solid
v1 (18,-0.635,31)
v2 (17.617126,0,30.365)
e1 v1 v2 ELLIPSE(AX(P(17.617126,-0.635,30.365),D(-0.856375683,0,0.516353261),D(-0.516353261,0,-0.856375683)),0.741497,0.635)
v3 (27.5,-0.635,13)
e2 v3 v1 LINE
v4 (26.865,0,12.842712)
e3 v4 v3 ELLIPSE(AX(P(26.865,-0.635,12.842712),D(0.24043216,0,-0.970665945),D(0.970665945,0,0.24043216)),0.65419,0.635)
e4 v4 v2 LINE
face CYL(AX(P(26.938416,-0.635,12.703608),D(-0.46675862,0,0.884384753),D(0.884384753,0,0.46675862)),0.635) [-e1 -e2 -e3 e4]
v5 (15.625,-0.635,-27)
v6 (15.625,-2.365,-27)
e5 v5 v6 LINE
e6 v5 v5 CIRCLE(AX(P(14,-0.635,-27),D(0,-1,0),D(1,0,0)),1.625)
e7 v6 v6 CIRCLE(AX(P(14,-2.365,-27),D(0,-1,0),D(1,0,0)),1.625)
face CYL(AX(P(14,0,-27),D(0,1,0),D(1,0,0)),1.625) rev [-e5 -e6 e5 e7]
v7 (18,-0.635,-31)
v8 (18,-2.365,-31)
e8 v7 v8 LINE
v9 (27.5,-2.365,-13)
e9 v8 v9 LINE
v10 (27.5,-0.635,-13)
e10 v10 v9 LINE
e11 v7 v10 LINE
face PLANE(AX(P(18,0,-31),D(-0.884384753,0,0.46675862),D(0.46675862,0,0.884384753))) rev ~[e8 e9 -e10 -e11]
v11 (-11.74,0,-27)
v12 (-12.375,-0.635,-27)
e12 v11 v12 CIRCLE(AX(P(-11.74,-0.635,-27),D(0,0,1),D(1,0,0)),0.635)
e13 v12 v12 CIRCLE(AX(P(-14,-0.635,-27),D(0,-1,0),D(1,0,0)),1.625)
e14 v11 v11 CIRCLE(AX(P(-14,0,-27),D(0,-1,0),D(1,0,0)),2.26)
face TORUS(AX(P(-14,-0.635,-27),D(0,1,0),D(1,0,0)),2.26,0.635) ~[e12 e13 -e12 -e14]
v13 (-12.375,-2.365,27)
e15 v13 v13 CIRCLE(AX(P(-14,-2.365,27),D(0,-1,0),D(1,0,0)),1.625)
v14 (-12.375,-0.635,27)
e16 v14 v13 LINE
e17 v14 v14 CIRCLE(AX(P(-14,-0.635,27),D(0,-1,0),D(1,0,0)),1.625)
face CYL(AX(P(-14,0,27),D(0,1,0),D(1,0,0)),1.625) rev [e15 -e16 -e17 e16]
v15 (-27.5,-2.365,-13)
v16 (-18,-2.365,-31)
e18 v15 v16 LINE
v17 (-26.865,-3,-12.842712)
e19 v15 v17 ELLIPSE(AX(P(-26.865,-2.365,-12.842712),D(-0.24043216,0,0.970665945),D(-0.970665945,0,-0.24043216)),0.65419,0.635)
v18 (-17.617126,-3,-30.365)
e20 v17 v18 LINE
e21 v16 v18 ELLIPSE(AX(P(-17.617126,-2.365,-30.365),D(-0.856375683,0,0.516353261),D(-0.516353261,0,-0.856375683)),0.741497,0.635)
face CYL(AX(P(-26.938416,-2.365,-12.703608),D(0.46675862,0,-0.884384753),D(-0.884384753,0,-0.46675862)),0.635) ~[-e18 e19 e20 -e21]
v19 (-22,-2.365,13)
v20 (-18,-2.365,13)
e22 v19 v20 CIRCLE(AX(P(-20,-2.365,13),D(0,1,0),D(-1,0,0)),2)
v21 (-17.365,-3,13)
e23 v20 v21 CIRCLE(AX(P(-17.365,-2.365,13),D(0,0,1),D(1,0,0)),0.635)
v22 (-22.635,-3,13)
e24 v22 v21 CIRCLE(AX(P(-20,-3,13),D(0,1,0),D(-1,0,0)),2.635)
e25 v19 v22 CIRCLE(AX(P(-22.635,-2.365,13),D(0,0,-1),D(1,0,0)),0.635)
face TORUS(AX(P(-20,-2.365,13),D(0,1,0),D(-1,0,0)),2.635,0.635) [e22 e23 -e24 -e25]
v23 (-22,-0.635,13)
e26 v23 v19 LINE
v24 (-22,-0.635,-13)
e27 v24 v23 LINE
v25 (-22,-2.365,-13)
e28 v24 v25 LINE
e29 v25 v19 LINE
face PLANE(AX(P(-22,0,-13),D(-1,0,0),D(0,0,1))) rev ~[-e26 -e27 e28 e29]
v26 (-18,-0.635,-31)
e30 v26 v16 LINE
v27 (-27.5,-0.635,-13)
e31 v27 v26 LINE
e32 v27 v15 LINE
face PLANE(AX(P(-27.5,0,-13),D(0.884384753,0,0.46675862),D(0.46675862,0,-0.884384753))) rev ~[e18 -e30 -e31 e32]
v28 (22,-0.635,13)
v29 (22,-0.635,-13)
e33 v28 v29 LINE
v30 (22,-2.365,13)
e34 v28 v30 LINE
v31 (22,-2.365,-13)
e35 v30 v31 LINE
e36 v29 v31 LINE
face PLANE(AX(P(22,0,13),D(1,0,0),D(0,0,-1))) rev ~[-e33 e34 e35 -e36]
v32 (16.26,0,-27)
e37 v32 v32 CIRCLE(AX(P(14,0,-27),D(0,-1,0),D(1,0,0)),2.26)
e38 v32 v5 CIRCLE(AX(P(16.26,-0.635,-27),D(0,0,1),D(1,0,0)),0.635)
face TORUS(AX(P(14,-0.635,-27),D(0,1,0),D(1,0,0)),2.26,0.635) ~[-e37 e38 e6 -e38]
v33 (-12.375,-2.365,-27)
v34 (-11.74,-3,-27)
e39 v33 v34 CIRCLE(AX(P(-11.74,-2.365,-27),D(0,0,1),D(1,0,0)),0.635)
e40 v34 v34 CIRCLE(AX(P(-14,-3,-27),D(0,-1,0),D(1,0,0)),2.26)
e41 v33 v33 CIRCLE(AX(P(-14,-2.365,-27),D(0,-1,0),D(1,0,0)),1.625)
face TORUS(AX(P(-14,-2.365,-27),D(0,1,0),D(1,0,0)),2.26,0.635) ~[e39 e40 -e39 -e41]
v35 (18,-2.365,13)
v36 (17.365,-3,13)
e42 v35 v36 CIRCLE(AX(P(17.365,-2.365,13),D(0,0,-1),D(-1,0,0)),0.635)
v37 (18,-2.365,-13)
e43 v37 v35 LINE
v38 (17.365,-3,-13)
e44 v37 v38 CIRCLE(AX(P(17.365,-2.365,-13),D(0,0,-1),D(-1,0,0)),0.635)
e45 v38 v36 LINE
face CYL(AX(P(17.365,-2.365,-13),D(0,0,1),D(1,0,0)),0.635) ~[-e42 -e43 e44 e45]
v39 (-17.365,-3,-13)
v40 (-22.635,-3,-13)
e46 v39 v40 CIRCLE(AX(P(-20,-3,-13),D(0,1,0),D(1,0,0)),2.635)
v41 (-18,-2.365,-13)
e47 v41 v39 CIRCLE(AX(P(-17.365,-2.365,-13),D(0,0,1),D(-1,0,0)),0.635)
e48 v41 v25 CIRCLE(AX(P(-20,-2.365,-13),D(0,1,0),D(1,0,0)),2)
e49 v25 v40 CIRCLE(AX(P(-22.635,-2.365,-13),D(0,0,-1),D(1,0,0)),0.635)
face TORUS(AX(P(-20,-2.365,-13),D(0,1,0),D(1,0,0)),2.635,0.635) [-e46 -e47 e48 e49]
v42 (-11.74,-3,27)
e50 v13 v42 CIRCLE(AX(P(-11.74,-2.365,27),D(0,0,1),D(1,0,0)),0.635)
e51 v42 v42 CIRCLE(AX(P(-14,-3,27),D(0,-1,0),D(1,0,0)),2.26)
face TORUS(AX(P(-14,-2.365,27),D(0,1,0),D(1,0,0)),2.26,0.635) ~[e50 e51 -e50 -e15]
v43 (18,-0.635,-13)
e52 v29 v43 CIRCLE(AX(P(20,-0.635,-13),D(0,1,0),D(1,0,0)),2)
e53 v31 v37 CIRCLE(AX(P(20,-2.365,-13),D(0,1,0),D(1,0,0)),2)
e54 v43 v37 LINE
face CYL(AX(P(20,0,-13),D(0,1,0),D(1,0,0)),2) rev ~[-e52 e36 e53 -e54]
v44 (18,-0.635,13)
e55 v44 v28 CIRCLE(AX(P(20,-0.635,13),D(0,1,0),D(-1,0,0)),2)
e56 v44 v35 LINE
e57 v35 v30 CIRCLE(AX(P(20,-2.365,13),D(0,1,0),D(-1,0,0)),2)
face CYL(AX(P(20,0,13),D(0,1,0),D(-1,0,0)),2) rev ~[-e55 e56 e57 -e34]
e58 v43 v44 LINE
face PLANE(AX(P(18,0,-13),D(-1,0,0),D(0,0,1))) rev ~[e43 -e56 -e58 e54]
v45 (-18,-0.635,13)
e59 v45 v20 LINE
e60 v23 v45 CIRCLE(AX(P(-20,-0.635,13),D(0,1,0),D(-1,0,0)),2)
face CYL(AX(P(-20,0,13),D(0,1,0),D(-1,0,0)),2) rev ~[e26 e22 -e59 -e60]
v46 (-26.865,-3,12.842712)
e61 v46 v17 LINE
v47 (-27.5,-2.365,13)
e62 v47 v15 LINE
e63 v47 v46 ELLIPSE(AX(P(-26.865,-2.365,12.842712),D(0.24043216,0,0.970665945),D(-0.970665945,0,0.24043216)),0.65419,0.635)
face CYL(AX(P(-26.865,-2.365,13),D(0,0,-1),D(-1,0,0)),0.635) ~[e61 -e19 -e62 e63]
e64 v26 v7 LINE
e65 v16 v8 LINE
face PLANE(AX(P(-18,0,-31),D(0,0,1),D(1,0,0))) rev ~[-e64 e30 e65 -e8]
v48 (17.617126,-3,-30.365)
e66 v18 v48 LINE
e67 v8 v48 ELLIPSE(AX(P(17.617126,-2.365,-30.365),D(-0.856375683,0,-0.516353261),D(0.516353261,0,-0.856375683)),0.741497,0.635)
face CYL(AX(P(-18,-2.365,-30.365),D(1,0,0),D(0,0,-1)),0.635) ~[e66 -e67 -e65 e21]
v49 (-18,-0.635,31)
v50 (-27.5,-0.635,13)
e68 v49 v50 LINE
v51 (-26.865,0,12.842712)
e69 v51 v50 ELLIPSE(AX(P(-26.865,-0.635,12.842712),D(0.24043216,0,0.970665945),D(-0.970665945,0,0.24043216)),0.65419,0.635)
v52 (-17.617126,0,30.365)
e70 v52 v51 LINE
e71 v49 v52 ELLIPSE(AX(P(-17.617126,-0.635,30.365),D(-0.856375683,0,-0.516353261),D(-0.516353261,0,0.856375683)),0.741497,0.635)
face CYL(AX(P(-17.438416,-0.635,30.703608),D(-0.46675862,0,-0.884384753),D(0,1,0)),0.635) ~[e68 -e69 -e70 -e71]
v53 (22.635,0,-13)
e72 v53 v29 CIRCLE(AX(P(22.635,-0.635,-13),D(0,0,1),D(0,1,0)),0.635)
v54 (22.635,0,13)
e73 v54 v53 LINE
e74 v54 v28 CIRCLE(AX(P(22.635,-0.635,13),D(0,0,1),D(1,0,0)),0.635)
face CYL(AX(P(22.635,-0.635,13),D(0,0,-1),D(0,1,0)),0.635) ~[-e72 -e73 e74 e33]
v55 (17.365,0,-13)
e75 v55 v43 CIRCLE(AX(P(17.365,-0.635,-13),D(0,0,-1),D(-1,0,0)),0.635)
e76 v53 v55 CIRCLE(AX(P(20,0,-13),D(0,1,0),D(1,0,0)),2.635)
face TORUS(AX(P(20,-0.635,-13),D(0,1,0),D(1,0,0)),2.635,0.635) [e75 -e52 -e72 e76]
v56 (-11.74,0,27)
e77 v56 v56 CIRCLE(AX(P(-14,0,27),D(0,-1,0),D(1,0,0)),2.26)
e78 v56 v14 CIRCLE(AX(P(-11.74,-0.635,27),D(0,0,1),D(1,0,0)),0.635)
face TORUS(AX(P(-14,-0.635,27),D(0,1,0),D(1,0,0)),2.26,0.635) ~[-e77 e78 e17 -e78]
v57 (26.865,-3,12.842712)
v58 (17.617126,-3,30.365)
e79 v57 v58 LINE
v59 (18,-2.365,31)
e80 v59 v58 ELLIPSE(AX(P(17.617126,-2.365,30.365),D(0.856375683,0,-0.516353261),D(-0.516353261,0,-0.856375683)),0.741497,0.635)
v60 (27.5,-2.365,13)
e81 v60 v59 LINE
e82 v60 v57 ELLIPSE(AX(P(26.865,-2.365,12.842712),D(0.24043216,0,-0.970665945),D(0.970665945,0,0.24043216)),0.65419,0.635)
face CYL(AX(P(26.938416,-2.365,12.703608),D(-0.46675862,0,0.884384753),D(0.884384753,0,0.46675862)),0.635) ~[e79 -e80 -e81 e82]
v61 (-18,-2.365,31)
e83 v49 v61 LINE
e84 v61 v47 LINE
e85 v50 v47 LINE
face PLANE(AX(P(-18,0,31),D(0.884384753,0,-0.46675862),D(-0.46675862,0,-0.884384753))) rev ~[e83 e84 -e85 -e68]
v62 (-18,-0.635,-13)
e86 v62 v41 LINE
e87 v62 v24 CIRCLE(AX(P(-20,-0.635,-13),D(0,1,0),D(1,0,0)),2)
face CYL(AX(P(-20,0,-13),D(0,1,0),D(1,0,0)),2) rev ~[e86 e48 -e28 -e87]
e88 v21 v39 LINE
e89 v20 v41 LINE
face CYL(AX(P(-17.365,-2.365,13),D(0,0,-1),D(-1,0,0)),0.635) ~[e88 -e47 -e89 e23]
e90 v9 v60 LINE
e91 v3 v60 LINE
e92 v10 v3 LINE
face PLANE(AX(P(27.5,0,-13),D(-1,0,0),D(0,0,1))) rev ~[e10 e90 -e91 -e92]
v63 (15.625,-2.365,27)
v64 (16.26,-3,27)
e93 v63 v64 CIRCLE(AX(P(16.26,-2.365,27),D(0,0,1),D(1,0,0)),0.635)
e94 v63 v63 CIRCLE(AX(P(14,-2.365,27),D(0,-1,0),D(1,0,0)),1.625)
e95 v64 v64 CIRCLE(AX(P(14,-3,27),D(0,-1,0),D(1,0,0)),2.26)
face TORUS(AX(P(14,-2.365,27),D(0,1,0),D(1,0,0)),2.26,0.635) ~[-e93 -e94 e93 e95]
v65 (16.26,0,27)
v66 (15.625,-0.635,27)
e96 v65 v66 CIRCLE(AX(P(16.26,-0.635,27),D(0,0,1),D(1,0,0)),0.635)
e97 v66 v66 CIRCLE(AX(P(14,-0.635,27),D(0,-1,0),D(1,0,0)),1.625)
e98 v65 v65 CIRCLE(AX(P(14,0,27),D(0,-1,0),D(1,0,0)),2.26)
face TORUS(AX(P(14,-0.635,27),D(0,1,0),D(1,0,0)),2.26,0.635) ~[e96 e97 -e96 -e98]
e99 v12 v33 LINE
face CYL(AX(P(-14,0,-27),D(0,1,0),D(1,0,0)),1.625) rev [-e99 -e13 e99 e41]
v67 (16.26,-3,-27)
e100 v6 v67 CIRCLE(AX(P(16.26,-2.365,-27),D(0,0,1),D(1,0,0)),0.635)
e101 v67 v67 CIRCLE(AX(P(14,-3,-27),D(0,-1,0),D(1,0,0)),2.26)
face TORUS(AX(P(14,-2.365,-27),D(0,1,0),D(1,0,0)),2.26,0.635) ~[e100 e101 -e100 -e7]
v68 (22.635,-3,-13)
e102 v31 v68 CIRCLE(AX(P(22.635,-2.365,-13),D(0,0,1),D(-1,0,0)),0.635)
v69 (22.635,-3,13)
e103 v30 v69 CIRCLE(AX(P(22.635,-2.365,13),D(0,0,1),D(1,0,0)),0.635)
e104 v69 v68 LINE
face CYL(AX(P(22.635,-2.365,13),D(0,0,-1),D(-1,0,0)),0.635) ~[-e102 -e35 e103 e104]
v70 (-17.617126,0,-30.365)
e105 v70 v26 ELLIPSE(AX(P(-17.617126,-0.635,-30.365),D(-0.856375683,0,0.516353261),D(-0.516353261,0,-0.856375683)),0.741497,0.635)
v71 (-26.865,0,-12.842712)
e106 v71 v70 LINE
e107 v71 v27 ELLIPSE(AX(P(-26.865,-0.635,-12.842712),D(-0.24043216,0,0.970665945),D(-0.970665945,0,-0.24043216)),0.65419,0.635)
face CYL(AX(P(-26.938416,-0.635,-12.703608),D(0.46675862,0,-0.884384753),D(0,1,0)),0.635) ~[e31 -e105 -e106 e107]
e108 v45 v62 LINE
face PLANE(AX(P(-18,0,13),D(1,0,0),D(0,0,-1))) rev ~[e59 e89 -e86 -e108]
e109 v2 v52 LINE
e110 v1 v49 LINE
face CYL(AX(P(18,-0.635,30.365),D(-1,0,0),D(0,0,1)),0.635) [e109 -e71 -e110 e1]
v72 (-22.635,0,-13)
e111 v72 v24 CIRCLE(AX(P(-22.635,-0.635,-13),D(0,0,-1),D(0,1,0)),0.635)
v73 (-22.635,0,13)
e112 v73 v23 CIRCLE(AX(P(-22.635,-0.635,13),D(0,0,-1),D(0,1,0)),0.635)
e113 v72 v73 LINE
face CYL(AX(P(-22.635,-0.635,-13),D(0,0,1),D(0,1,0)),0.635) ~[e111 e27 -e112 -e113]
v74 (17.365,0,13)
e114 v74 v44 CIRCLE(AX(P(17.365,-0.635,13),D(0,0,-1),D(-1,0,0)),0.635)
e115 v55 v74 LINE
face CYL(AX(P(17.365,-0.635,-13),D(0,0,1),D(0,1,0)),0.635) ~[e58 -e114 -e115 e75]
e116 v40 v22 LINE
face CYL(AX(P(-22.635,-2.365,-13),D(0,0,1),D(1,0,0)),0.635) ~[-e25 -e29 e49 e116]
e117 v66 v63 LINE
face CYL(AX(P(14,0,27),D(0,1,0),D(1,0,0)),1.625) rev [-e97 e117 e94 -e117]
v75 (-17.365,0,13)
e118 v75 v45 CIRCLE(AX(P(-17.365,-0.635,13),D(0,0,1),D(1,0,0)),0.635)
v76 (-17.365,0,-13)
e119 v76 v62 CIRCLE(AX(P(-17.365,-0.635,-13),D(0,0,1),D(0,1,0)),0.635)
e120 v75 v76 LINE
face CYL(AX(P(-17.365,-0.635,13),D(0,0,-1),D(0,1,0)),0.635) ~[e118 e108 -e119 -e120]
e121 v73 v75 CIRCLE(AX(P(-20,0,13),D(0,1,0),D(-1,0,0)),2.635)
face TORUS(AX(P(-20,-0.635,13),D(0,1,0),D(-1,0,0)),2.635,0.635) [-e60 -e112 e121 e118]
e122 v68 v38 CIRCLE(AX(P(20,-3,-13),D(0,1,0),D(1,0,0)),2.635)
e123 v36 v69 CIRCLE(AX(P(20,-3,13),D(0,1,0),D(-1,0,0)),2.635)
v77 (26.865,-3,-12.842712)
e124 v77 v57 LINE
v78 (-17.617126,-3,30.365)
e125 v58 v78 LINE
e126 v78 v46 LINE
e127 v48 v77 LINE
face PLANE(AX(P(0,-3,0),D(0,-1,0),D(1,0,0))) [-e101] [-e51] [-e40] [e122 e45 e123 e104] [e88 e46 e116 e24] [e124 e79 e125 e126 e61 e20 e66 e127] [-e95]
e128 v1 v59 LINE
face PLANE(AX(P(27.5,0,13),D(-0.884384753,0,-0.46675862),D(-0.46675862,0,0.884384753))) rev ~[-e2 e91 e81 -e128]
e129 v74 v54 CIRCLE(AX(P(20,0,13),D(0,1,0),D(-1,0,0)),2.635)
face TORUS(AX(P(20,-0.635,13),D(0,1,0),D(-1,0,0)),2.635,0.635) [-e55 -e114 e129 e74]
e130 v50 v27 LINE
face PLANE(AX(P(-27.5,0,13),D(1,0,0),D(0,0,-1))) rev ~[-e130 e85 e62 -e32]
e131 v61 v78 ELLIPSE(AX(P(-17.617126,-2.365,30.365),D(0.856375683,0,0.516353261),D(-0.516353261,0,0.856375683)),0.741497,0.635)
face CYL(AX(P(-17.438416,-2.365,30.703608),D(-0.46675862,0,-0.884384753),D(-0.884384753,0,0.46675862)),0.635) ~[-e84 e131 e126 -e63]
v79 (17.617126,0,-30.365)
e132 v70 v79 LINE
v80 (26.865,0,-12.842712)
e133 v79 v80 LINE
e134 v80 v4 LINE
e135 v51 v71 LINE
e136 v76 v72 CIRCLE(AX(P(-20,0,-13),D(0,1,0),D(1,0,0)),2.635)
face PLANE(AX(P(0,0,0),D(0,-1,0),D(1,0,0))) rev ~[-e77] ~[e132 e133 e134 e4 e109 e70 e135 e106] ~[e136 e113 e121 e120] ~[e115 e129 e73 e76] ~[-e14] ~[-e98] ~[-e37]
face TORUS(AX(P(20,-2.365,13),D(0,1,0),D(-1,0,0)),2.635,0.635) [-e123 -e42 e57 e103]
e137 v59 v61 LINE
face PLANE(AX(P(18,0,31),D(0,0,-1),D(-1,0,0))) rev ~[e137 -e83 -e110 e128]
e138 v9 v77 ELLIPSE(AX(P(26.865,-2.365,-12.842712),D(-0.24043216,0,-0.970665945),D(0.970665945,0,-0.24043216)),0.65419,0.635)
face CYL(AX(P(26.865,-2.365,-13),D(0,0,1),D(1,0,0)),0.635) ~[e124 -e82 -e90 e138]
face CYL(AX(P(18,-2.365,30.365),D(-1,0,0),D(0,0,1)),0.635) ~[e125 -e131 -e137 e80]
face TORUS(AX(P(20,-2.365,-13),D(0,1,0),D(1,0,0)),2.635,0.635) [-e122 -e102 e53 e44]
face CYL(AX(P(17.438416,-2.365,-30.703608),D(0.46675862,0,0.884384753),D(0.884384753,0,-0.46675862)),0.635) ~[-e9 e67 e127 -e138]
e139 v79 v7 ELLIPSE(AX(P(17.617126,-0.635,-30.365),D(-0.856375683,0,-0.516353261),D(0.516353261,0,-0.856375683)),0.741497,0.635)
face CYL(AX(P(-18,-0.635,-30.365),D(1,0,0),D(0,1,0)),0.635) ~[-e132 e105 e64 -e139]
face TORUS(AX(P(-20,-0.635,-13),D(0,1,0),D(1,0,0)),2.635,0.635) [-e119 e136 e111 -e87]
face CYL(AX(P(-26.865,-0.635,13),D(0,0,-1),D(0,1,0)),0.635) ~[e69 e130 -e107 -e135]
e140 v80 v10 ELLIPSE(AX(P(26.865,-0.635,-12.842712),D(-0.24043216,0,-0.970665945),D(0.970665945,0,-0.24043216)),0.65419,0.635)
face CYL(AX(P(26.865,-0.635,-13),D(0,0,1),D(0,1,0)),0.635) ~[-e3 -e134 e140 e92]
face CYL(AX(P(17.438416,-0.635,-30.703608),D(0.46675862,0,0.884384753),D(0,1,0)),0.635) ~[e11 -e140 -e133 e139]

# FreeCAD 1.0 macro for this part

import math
import FreeCAD as App
import Part
import Sketcher
from FreeCAD import Vector


def edges_at(feature, points):
    """Names of the edges that pass closest to the given points."""
    edges = feature.Shape.Edges
    near = lambda p: min(range(len(edges)), key=lambda i: edges[i].distToShape(Part.Vertex(*p))[0])
    return sorted({f"Edge{near(p) + 1}" for p in points})

doc = App.newDocument("Part")
body = doc.addObject("PartDesign::Body", "Body")

# Sketch on XZ plane
sketch1 = body.newObject("Sketcher::SketchObject", "Sketch")
sketch1.AttachmentSupport = (doc.getObject("XZ_Plane"), [""])
sketch1.MapMode = "FlatFace"
sketch1.addGeometry([
    Part.LineSegment(Vector(18, 31, 0), Vector(-18, 31, 0)),  # 0
    Part.LineSegment(Vector(-18, 31, 0), Vector(-27.5, 13, 0)),  # 1
    Part.LineSegment(Vector(-27.5, 13, 0), Vector(-27.5, -13, 0)),  # 2
    Part.LineSegment(Vector(-27.5, -13, 0), Vector(-18, -31, 0)),  # 3
    Part.LineSegment(Vector(-18, -31, 0), Vector(18, -31, 0)),  # 4
    Part.LineSegment(Vector(18, -31, 0), Vector(27.5, -13, 0)),  # 5
    Part.LineSegment(Vector(27.5, -13, 0), Vector(27.5, 13, 0)),  # 6
    Part.LineSegment(Vector(27.5, 13, 0), Vector(18, 31, 0)),  # 7
    Part.Circle(Vector(-14, -27, 0), Vector(0, 0, 1), 1.6),  # 8
    Part.Circle(Vector(14, -27, 0), Vector(0, 0, 1), 1.6),  # 9
    Part.ArcOfCircle(Part.Circle(Vector(-20, -13, 0), Vector(0, 0, 1), 2), math.radians(180), math.radians(360)),  # 10
    Part.LineSegment(Vector(-22, -13, 0), Vector(-22, 13, 0)),  # 11
    Part.ArcOfCircle(Part.Circle(Vector(-20, 13, 0), Vector(0, 0, 1), 2), math.radians(0), math.radians(180)),  # 12
    Part.LineSegment(Vector(-18, 13, 0), Vector(-18, -13, 0)),  # 13
    Part.Circle(Vector(-14, 27, 0), Vector(0, 0, 1), 1.6),  # 14
    Part.LineSegment(Vector(18, -13, 0), Vector(18, 13, 0)),  # 15
    Part.ArcOfCircle(Part.Circle(Vector(20, 13, 0), Vector(0, 0, 1), 2), math.radians(0), math.radians(180)),  # 16
    Part.LineSegment(Vector(22, 13, 0), Vector(22, -13, 0)),  # 17
    Part.ArcOfCircle(Part.Circle(Vector(20, -13, 0), Vector(0, 0, 1), 2), math.radians(180), math.radians(360)),  # 18
    Part.Circle(Vector(14, 27, 0), Vector(0, 0, 1), 1.6),  # 19
], False)
sketch1.addConstraint([
    Sketcher.Constraint("Coincident", 0, 2, 1, 1),
    Sketcher.Constraint("Coincident", 1, 2, 2, 1),
    Sketcher.Constraint("Coincident", 2, 2, 3, 1),
    Sketcher.Constraint("Coincident", 3, 2, 4, 1),
    Sketcher.Constraint("Coincident", 4, 2, 5, 1),
    Sketcher.Constraint("Coincident", 5, 2, 6, 1),
    Sketcher.Constraint("Coincident", 6, 2, 7, 1),
    Sketcher.Constraint("Coincident", 7, 2, 0, 1),
    Sketcher.Constraint("Tangent", 10, 1, 11, 1),
    Sketcher.Constraint("Tangent", 11, 2, 12, 2),
    Sketcher.Constraint("Tangent", 12, 1, 13, 1),
    Sketcher.Constraint("Tangent", 13, 2, 10, 2),
    Sketcher.Constraint("Tangent", 15, 2, 16, 2),
    Sketcher.Constraint("Tangent", 16, 1, 17, 1),
    Sketcher.Constraint("Tangent", 17, 2, 18, 2),
    Sketcher.Constraint("Tangent", 18, 1, 15, 1),
    Sketcher.Constraint("Horizontal", 0),
    Sketcher.Constraint("Vertical", 2),
    Sketcher.Constraint("Horizontal", 4),
    Sketcher.Constraint("Vertical", 6),
    Sketcher.Constraint("Vertical", 11),
    Sketcher.Constraint("Vertical", 13),
    Sketcher.Constraint("Vertical", 15),
    Sketcher.Constraint("Vertical", 17),
    Sketcher.Constraint("Equal", 8, 9),
    Sketcher.Constraint("Equal", 9, 14),
    Sketcher.Constraint("Equal", 12, 16),
    Sketcher.Constraint("Equal", 14, 19),
    Sketcher.Constraint("Symmetric", 9, 3, 14, 3, -1, 1),
    Sketcher.Constraint("Symmetric", 10, 3, 16, 3, -1, 1),
    Sketcher.Constraint("Symmetric", 8, 3, 19, 3, -1, 1),
    Sketcher.Constraint("Symmetric", 0, 2, 4, 2, -1, 1),
    Sketcher.Constraint("Symmetric", 1, 2, 5, 2, -1, 1),
    Sketcher.Constraint("Symmetric", 8, 3, 9, 3, -2),
    Sketcher.Constraint("Parallel", 3, 7),
    Sketcher.Constraint("Horizontal", 12, 3, 16, 3),
    Sketcher.Constraint("Horizontal", 10, 3, 18, 3),
    Sketcher.Constraint("Horizontal", 16, 3, 1, 2),
    Sketcher.Constraint("Horizontal", 18, 3, 2, 2),
    Sketcher.Constraint("Horizontal", 1, 2, 6, 2),
    Sketcher.Constraint("Vertical", 0, 2, 3, 2),
    Sketcher.Constraint("Vertical", 3, 2, 12, 1),
    Sketcher.Constraint("Radius", 10, 2.0),
    Sketcher.Constraint("Diameter", 8, 3.25),
    Sketcher.Constraint("DistanceX", 0, 2, 0, 1, 36.0),
    Sketcher.Constraint("DistanceY", 2, 2, 2, 1, 26.0),
    Sketcher.Constraint("DistanceX", 8, 3, -1, 1, 14.0),
    Sketcher.Constraint("DistanceY", 8, 3, -1, 1, 27.0),
    Sketcher.Constraint("DistanceY", -1, 1, 0, 2, 31.0),
    Sketcher.Constraint("DistanceX", 1, 2, -1, 1, 27.5),
])
pad1 = body.newObject("PartDesign::Pad", "Pad")
pad1.Profile = sketch1
pad1.Length = 3
doc.recompute()

fillet = body.newObject("PartDesign::Fillet", "Fillet")
fillet.Base = (pad1, edges_at(pad1, [
    (0, -3, 31),
    (-22.75, -3, 22),
    (-27.5, -3, 0),
    (-22.75, -3, -22),
    (0, -3, -31),
    (22.75, -3, -22),
    (27.5, -3, 0),
    (22.75, -3, 22),
    (-15.625, -3, -27),
    (12.375, -3, -27),
    (-22, -3, 0),
    (-20, -3, 15),
    (-18, -3, 0),
    (-20, -3, -15),
    (-15.625, -3, 27),
    (20, -3, 15),
    (22, -3, 0),
    (20, -3, -15),
    (18, -3, 0),
    (12.375, -3, 27),
]))
fillet.Radius = 0.635
doc.recompute()

fillet2 = body.newObject("PartDesign::Fillet", "Fillet001")
fillet2.Base = (fillet, edges_at(fillet, [
    (0, 0, 31),
    (-22.75, 0, 22),
    (-27.5, 0, 0),
    (-22.75, 0, -22),
    (0, 0, -31),
    (22.75, 0, -22),
    (27.5, 0, 0),
    (22.75, 0, 22),
    (-15.625, 0, -27),
    (12.375, 0, -27),
    (-22, 0, 0),
    (-20, 0, 15),
    (-18, 0, 0),
    (-20, 0, -15),
    (-15.625, 0, 27),
    (20, 0, 15),
    (22, 0, 0),
    (20, 0, -15),
    (18, 0, 0),
    (12.375, 0, 27),
]))
fillet2.Radius = 0.635

doc.recompute()
